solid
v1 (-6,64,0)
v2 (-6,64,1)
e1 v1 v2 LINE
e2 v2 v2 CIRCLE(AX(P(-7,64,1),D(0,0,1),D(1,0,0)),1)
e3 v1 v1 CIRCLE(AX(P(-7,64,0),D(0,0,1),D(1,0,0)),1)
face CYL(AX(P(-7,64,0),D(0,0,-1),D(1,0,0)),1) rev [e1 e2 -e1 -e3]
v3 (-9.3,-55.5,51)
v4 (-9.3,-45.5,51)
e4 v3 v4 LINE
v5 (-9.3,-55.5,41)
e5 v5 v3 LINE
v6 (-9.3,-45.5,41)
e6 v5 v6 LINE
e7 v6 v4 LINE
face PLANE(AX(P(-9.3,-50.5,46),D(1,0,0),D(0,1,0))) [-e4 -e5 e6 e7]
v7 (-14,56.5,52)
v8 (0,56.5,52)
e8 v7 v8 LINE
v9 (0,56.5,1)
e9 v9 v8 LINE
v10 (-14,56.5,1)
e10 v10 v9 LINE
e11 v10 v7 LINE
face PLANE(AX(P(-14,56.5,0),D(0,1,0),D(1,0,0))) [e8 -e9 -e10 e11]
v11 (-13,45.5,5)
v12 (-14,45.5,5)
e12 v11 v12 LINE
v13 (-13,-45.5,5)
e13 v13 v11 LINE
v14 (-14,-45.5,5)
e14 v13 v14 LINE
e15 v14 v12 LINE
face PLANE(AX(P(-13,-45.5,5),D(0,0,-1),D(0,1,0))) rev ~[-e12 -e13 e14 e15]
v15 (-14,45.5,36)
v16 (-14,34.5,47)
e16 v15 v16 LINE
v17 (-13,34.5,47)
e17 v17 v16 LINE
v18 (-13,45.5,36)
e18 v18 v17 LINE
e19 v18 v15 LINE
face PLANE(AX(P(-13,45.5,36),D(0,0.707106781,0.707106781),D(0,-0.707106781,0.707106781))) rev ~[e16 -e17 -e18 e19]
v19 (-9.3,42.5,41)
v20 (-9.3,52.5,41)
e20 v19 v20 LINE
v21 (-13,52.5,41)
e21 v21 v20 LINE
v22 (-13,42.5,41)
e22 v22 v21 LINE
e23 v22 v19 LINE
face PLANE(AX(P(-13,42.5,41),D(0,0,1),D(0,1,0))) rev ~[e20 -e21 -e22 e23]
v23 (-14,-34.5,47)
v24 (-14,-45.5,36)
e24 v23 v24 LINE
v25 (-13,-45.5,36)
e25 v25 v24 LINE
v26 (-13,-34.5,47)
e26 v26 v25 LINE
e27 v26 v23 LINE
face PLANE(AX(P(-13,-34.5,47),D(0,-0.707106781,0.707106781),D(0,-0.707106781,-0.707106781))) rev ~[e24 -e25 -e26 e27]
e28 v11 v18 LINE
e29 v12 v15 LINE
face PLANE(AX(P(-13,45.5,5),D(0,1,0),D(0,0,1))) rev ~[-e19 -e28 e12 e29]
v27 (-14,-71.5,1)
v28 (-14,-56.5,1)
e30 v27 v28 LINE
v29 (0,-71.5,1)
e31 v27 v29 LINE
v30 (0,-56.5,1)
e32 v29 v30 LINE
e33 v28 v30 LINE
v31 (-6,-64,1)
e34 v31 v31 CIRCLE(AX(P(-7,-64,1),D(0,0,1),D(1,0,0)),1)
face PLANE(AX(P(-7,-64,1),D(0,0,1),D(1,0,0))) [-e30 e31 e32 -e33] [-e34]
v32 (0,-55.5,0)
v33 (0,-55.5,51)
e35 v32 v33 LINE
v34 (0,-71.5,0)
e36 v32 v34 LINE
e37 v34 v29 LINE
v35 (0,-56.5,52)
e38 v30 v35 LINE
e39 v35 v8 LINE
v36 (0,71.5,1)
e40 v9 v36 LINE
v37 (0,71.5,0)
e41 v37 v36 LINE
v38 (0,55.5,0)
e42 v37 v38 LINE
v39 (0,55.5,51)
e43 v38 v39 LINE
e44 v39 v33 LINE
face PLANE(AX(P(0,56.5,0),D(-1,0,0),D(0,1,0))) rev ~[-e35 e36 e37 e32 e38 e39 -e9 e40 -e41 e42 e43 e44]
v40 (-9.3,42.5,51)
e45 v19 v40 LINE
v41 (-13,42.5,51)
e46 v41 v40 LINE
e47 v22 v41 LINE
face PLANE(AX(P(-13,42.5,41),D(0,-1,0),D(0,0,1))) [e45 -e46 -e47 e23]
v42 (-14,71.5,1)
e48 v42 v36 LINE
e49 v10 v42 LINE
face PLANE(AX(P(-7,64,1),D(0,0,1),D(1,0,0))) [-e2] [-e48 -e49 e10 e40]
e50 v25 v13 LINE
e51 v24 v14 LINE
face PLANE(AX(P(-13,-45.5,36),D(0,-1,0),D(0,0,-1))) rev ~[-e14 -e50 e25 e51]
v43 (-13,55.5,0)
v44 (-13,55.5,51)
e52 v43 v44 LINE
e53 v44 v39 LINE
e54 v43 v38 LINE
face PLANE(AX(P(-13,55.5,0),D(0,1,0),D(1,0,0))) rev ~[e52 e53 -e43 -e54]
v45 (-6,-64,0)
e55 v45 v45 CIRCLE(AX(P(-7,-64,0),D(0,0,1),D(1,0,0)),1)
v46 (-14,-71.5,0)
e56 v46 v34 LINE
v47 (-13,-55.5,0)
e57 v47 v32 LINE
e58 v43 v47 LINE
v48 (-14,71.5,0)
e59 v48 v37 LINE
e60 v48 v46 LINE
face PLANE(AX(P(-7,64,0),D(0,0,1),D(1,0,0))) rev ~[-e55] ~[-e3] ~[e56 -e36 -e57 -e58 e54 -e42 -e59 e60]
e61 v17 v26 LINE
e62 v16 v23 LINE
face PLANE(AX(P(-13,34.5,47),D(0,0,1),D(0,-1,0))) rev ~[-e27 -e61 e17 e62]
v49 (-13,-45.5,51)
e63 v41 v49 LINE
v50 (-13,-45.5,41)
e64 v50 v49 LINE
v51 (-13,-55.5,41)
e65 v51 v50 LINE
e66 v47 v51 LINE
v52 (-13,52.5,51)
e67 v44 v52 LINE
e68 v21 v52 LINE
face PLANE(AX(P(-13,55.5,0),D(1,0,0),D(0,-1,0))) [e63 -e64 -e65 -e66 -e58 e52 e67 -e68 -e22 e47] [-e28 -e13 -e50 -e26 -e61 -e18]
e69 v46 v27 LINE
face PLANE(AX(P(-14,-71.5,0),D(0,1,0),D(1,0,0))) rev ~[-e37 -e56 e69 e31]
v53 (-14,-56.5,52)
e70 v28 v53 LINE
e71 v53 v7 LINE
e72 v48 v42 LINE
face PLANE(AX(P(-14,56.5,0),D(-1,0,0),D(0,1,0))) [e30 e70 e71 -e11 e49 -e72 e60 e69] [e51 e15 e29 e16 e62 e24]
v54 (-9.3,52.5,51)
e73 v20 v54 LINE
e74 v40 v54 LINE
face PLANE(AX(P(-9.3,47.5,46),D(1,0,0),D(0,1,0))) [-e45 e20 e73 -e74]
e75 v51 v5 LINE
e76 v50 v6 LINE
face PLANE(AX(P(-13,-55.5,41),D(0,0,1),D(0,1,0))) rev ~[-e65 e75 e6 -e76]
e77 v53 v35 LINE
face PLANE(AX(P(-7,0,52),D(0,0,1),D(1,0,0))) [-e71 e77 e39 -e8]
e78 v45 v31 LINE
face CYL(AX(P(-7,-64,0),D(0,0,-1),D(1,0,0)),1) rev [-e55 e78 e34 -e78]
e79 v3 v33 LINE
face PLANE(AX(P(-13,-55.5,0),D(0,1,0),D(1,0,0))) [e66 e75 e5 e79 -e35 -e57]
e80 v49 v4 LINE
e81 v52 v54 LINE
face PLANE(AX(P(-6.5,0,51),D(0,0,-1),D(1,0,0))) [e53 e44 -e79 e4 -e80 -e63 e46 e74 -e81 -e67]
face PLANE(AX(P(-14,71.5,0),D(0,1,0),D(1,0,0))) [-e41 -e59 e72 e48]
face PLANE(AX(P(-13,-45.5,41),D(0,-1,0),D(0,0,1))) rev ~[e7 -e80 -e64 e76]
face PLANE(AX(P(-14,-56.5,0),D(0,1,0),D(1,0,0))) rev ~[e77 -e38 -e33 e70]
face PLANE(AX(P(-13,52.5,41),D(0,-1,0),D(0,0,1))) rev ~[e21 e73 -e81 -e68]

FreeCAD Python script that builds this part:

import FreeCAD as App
import Part
import Sketcher
Q = App.Units.Quantity

doc = App.newDocument("Part")
body = doc.addObject("PartDesign::Body", "Body")

sketch1 = doc.addObject("Sketcher::SketchObject", "Sketch")
body.addObject(sketch1)
sketch1.AttachmentSupport = (doc.XY_Plane, [""])
sketch1.MapMode = "FlatFace"
sketch1.addGeometry([
    Part.LineSegment(App.Vector(-14, 56, 0), App.Vector(-14, -56, 0)),
    Part.LineSegment(App.Vector(-14, -56, 0), App.Vector(0, -56, 0)),
    Part.LineSegment(App.Vector(0, -56, 0), App.Vector(0, 56, 0)),
    Part.LineSegment(App.Vector(0, 56, 0), App.Vector(-14, 56, 0)),
], False)
sketch1.addConstraint([
    Sketcher.Constraint("Coincident", 0, 2, 1, 1),
    Sketcher.Constraint("Coincident", 1, 2, 2, 1),
    Sketcher.Constraint("Coincident", 2, 2, 3, 1),
    Sketcher.Constraint("Coincident", 3, 2, 0, 1),
    Sketcher.Constraint("Vertical", 0),
    Sketcher.Constraint("Horizontal", 1),
    Sketcher.Constraint("Vertical", 2),
    Sketcher.Constraint("Horizontal", 3),
    Sketcher.Constraint("Symmetric", 1, 2, 2, 2, -1, 1),
    Sketcher.Constraint("DistanceX", 1, 1, 1, 2, Q("14 mm")),
    Sketcher.Constraint("DistanceY", 0, 2, 0, 1, Q("113 mm")),
])
pad1 = doc.addObject("PartDesign::Pad", "Pad")
body.addObject(pad1)
pad1.Profile = sketch1
pad1.Length = 52

sketch2 = doc.addObject("Sketcher::SketchObject", "Sketch001")
body.addObject(sketch2)
sketch2.AttachmentSupport = (doc.XY_Plane, [""])
sketch2.MapMode = "FlatFace"
sketch2.addGeometry([
    Part.LineSegment(App.Vector(-13, -56, 0), App.Vector(-13, 56, 0)),
    Part.LineSegment(App.Vector(-13, 56, 0), App.Vector(0, 56, 0)),
    Part.LineSegment(App.Vector(0, 56, 0), App.Vector(0, -56, 0)),
    Part.LineSegment(App.Vector(0, -56, 0), App.Vector(-13, -56, 0)),
], False)
sketch2.addConstraint([
    Sketcher.Constraint("Coincident", 0, 2, 1, 1),
    Sketcher.Constraint("Coincident", 1, 2, 2, 1),
    Sketcher.Constraint("Coincident", 2, 2, 3, 1),
    Sketcher.Constraint("Coincident", 3, 2, 0, 1),
    Sketcher.Constraint("Vertical", 0),
    Sketcher.Constraint("Horizontal", 1),
    Sketcher.Constraint("Vertical", 2),
    Sketcher.Constraint("Horizontal", 3),
    Sketcher.Constraint("Symmetric", 1, 2, 2, 2, -1, 1),
    Sketcher.Constraint("DistanceX", 1, 1, 1, 2, Q("13 mm")),
    Sketcher.Constraint("DistanceY", 0, 1, 0, 2, Q("111 mm")),
])
pocket1 = doc.addObject("PartDesign::Pocket", "Pocket")
body.addObject(pocket1)
pocket1.Profile = sketch2
pocket1.Length = 51
pocket1.Reversed = True

sketch3 = doc.addObject("Sketcher::SketchObject", "Sketch002")
body.addObject(sketch3)
sketch3.AttachmentSupport = (doc.XY_Plane, [""])
sketch3.MapMode = "FlatFace"
sketch3.addGeometry([
    Part.LineSegment(App.Vector(-14, 71.5, 0), App.Vector(-14, 56.5, 0)),
    Part.LineSegment(App.Vector(-14, 56.5, 0), App.Vector(0, 56.5, 0)),
    Part.LineSegment(App.Vector(0, 56.5, 0), App.Vector(0, 71.5, 0)),
    Part.LineSegment(App.Vector(0, 71.5, 0), App.Vector(-14, 71.5, 0)),
    Part.Circle(App.Vector(-7, 64, 0), App.Vector(0, 0, 1), 1),
    Part.LineSegment(App.Vector(-14, -56.5, 0), App.Vector(-14, -71.5, 0)),
    Part.LineSegment(App.Vector(-14, -71.5, 0), App.Vector(0, -71.5, 0)),
    Part.LineSegment(App.Vector(0, -71.5, 0), App.Vector(0, -56.5, 0)),
    Part.LineSegment(App.Vector(0, -56.5, 0), App.Vector(-14, -56.5, 0)),
    Part.Circle(App.Vector(-7, -64, 0), App.Vector(0, 0, 1), 1),
], False)
sketch3.addConstraint([
    Sketcher.Constraint("Coincident", 0, 2, 1, 1),
    Sketcher.Constraint("Coincident", 1, 2, 2, 1),
    Sketcher.Constraint("Coincident", 2, 2, 3, 1),
    Sketcher.Constraint("Coincident", 3, 2, 0, 1),
    Sketcher.Constraint("Coincident", 5, 2, 6, 1),
    Sketcher.Constraint("Coincident", 6, 2, 7, 1),
    Sketcher.Constraint("Coincident", 7, 2, 8, 1),
    Sketcher.Constraint("Coincident", 8, 2, 5, 1),
    Sketcher.Constraint("Vertical", 0),
    Sketcher.Constraint("Horizontal", 1),
    Sketcher.Constraint("Vertical", 2),
    Sketcher.Constraint("Horizontal", 3),
    Sketcher.Constraint("Vertical", 5),
    Sketcher.Constraint("Horizontal", 6),
    Sketcher.Constraint("Vertical", 7),
    Sketcher.Constraint("Horizontal", 8),
    Sketcher.Constraint("Equal", 4, 9),
    Sketcher.Constraint("Symmetric", 2, 2, 6, 2, -1, 1),
    Sketcher.Constraint("Symmetric", 4, 3, 9, 3, -1),
    Sketcher.Constraint("Symmetric", 1, 2, 7, 2, -1),
    Sketcher.Constraint("Vertical", 3, 2, 5, 2),
    Sketcher.Constraint("Diameter", 4, Q("2 mm")),
    Sketcher.Constraint("DistanceX", 1, 1, 1, 2, Q("14 mm")),
    Sketcher.Constraint("DistanceY", 0, 2, 0, 1, Q("15 mm")),
    Sketcher.Constraint("DistanceX", 4, 3, -1, 1, Q("7 mm")),
    Sketcher.Constraint("DistanceY", -1, 1, 4, 3, Q("64 mm")),
    Sketcher.Constraint("DistanceY", 5, 2, 0, 2, Q("128 mm")),
])
pad2 = doc.addObject("PartDesign::Pad", "Pad001")
body.addObject(pad2)
pad2.Profile = sketch3
pad2.Length = 1

sketch4 = doc.addObject("Sketcher::SketchObject", "Sketch003")
body.addObject(sketch4)
sketch4.AttachmentSupport = (doc.YZ_Plane, [""])
sketch4.MapMode = "FlatFace"
sketch4.AttachmentOffset = App.Placement(App.Vector(0, 0, -13), App.Rotation())
sketch4.addGeometry([
    Part.LineSegment(App.Vector(-46, 36, 0), App.Vector(-46, 5, 0)),
    Part.LineSegment(App.Vector(-46, 5, 0), App.Vector(46, 5, 0)),
    Part.LineSegment(App.Vector(46, 5, 0), App.Vector(46, 36, 0)),
    Part.LineSegment(App.Vector(46, 36, 0), App.Vector(34, 47, 0)),
    Part.LineSegment(App.Vector(34, 47, 0), App.Vector(-34, 47, 0)),
    Part.LineSegment(App.Vector(-34, 47, 0), App.Vector(-46, 36, 0)),
], False)
sketch4.addConstraint([
    Sketcher.Constraint("Coincident", 0, 2, 1, 1),
    Sketcher.Constraint("Coincident", 1, 2, 2, 1),
    Sketcher.Constraint("Coincident", 2, 2, 3, 1),
    Sketcher.Constraint("Coincident", 3, 2, 4, 1),
    Sketcher.Constraint("Coincident", 4, 2, 5, 1),
    Sketcher.Constraint("Coincident", 5, 2, 0, 1),
    Sketcher.Constraint("Vertical", 0),
    Sketcher.Constraint("Horizontal", 1),
    Sketcher.Constraint("Vertical", 2),
    Sketcher.Constraint("Horizontal", 4),
    Sketcher.Constraint("Symmetric", 2, 2, 5, 2, -2),
    Sketcher.Constraint("Perpendicular", 3, 5),
    Sketcher.Constraint("Equal", 3, 5),
    Sketcher.Constraint("DistanceX", 1, 1, 1, 2, Q("91 mm")),
    Sketcher.Constraint("DistanceX", 4, 2, 4, 1, Q("69 mm")),
    Sketcher.Constraint("DistanceY", 0, 2, 0, 1, Q("31 mm")),
    Sketcher.Constraint("DistanceY", -1, 1, 0, 2, Q("5 mm")),
])
pocket2 = doc.addObject("PartDesign::Pocket", "Pocket001")
body.addObject(pocket2)
pocket2.Profile = sketch4
pocket2.Length = 1

sketch5 = doc.addObject("Sketcher::SketchObject", "Sketch004")
body.addObject(sketch5)
sketch5.AttachmentSupport = (doc.YZ_Plane, [""])
sketch5.MapMode = "FlatFace"
sketch5.AttachmentOffset = App.Placement(App.Vector(0, 0, -13), App.Rotation())
sketch5.addGeometry([
    Part.LineSegment(App.Vector(-56, 51, 0), App.Vector(-56, 41, 0)),
    Part.LineSegment(App.Vector(-56, 41, 0), App.Vector(-46, 41, 0)),
    Part.LineSegment(App.Vector(-46, 41, 0), App.Vector(-46, 51, 0)),
    Part.LineSegment(App.Vector(-46, 51, 0), App.Vector(-56, 51, 0)),
    Part.LineSegment(App.Vector(42, 51, 0), App.Vector(42, 41, 0)),
    Part.LineSegment(App.Vector(42, 41, 0), App.Vector(52, 41, 0)),
    Part.LineSegment(App.Vector(52, 41, 0), App.Vector(52, 51, 0)),
    Part.LineSegment(App.Vector(52, 51, 0), App.Vector(42, 51, 0)),
], False)
sketch5.addConstraint([
    Sketcher.Constraint("Coincident", 0, 2, 1, 1),
    Sketcher.Constraint("Coincident", 1, 2, 2, 1),
    Sketcher.Constraint("Coincident", 2, 2, 3, 1),
    Sketcher.Constraint("Coincident", 3, 2, 0, 1),
    Sketcher.Constraint("Coincident", 4, 2, 5, 1),
    Sketcher.Constraint("Coincident", 5, 2, 6, 1),
    Sketcher.Constraint("Coincident", 6, 2, 7, 1),
    Sketcher.Constraint("Coincident", 7, 2, 4, 1),
    Sketcher.Constraint("Vertical", 0),
    Sketcher.Constraint("Horizontal", 1),
    Sketcher.Constraint("Vertical", 2),
    Sketcher.Constraint("Horizontal", 3),
    Sketcher.Constraint("Vertical", 4),
    Sketcher.Constraint("Horizontal", 5),
    Sketcher.Constraint("Vertical", 6),
    Sketcher.Constraint("Horizontal", 7),
    Sketcher.Constraint("Horizontal", 1, 2, 4, 2),
    Sketcher.Constraint("Horizontal", 3, 2, 6, 2),
    Sketcher.Constraint("Equal", 3, 5),
    Sketcher.Constraint("Equal", 7, 0),
    Sketcher.Constraint("DistanceX", 1, 1, 1, 2, Q("10 mm")),
    Sketcher.Constraint("DistanceY", -1, 1, 0, 2, Q("41 mm")),
    Sketcher.Constraint("DistanceX", 1, 2, 4, 2, Q("88 mm")),
    Sketcher.Constraint("DistanceX", 0, 2, -1, 1, Q("55.5 mm")),
])
pad3 = doc.addObject("PartDesign::Pad", "Pad002")
body.addObject(pad3)
pad3.Profile = sketch5
pad3.Length = 3.7

doc.recompute()
